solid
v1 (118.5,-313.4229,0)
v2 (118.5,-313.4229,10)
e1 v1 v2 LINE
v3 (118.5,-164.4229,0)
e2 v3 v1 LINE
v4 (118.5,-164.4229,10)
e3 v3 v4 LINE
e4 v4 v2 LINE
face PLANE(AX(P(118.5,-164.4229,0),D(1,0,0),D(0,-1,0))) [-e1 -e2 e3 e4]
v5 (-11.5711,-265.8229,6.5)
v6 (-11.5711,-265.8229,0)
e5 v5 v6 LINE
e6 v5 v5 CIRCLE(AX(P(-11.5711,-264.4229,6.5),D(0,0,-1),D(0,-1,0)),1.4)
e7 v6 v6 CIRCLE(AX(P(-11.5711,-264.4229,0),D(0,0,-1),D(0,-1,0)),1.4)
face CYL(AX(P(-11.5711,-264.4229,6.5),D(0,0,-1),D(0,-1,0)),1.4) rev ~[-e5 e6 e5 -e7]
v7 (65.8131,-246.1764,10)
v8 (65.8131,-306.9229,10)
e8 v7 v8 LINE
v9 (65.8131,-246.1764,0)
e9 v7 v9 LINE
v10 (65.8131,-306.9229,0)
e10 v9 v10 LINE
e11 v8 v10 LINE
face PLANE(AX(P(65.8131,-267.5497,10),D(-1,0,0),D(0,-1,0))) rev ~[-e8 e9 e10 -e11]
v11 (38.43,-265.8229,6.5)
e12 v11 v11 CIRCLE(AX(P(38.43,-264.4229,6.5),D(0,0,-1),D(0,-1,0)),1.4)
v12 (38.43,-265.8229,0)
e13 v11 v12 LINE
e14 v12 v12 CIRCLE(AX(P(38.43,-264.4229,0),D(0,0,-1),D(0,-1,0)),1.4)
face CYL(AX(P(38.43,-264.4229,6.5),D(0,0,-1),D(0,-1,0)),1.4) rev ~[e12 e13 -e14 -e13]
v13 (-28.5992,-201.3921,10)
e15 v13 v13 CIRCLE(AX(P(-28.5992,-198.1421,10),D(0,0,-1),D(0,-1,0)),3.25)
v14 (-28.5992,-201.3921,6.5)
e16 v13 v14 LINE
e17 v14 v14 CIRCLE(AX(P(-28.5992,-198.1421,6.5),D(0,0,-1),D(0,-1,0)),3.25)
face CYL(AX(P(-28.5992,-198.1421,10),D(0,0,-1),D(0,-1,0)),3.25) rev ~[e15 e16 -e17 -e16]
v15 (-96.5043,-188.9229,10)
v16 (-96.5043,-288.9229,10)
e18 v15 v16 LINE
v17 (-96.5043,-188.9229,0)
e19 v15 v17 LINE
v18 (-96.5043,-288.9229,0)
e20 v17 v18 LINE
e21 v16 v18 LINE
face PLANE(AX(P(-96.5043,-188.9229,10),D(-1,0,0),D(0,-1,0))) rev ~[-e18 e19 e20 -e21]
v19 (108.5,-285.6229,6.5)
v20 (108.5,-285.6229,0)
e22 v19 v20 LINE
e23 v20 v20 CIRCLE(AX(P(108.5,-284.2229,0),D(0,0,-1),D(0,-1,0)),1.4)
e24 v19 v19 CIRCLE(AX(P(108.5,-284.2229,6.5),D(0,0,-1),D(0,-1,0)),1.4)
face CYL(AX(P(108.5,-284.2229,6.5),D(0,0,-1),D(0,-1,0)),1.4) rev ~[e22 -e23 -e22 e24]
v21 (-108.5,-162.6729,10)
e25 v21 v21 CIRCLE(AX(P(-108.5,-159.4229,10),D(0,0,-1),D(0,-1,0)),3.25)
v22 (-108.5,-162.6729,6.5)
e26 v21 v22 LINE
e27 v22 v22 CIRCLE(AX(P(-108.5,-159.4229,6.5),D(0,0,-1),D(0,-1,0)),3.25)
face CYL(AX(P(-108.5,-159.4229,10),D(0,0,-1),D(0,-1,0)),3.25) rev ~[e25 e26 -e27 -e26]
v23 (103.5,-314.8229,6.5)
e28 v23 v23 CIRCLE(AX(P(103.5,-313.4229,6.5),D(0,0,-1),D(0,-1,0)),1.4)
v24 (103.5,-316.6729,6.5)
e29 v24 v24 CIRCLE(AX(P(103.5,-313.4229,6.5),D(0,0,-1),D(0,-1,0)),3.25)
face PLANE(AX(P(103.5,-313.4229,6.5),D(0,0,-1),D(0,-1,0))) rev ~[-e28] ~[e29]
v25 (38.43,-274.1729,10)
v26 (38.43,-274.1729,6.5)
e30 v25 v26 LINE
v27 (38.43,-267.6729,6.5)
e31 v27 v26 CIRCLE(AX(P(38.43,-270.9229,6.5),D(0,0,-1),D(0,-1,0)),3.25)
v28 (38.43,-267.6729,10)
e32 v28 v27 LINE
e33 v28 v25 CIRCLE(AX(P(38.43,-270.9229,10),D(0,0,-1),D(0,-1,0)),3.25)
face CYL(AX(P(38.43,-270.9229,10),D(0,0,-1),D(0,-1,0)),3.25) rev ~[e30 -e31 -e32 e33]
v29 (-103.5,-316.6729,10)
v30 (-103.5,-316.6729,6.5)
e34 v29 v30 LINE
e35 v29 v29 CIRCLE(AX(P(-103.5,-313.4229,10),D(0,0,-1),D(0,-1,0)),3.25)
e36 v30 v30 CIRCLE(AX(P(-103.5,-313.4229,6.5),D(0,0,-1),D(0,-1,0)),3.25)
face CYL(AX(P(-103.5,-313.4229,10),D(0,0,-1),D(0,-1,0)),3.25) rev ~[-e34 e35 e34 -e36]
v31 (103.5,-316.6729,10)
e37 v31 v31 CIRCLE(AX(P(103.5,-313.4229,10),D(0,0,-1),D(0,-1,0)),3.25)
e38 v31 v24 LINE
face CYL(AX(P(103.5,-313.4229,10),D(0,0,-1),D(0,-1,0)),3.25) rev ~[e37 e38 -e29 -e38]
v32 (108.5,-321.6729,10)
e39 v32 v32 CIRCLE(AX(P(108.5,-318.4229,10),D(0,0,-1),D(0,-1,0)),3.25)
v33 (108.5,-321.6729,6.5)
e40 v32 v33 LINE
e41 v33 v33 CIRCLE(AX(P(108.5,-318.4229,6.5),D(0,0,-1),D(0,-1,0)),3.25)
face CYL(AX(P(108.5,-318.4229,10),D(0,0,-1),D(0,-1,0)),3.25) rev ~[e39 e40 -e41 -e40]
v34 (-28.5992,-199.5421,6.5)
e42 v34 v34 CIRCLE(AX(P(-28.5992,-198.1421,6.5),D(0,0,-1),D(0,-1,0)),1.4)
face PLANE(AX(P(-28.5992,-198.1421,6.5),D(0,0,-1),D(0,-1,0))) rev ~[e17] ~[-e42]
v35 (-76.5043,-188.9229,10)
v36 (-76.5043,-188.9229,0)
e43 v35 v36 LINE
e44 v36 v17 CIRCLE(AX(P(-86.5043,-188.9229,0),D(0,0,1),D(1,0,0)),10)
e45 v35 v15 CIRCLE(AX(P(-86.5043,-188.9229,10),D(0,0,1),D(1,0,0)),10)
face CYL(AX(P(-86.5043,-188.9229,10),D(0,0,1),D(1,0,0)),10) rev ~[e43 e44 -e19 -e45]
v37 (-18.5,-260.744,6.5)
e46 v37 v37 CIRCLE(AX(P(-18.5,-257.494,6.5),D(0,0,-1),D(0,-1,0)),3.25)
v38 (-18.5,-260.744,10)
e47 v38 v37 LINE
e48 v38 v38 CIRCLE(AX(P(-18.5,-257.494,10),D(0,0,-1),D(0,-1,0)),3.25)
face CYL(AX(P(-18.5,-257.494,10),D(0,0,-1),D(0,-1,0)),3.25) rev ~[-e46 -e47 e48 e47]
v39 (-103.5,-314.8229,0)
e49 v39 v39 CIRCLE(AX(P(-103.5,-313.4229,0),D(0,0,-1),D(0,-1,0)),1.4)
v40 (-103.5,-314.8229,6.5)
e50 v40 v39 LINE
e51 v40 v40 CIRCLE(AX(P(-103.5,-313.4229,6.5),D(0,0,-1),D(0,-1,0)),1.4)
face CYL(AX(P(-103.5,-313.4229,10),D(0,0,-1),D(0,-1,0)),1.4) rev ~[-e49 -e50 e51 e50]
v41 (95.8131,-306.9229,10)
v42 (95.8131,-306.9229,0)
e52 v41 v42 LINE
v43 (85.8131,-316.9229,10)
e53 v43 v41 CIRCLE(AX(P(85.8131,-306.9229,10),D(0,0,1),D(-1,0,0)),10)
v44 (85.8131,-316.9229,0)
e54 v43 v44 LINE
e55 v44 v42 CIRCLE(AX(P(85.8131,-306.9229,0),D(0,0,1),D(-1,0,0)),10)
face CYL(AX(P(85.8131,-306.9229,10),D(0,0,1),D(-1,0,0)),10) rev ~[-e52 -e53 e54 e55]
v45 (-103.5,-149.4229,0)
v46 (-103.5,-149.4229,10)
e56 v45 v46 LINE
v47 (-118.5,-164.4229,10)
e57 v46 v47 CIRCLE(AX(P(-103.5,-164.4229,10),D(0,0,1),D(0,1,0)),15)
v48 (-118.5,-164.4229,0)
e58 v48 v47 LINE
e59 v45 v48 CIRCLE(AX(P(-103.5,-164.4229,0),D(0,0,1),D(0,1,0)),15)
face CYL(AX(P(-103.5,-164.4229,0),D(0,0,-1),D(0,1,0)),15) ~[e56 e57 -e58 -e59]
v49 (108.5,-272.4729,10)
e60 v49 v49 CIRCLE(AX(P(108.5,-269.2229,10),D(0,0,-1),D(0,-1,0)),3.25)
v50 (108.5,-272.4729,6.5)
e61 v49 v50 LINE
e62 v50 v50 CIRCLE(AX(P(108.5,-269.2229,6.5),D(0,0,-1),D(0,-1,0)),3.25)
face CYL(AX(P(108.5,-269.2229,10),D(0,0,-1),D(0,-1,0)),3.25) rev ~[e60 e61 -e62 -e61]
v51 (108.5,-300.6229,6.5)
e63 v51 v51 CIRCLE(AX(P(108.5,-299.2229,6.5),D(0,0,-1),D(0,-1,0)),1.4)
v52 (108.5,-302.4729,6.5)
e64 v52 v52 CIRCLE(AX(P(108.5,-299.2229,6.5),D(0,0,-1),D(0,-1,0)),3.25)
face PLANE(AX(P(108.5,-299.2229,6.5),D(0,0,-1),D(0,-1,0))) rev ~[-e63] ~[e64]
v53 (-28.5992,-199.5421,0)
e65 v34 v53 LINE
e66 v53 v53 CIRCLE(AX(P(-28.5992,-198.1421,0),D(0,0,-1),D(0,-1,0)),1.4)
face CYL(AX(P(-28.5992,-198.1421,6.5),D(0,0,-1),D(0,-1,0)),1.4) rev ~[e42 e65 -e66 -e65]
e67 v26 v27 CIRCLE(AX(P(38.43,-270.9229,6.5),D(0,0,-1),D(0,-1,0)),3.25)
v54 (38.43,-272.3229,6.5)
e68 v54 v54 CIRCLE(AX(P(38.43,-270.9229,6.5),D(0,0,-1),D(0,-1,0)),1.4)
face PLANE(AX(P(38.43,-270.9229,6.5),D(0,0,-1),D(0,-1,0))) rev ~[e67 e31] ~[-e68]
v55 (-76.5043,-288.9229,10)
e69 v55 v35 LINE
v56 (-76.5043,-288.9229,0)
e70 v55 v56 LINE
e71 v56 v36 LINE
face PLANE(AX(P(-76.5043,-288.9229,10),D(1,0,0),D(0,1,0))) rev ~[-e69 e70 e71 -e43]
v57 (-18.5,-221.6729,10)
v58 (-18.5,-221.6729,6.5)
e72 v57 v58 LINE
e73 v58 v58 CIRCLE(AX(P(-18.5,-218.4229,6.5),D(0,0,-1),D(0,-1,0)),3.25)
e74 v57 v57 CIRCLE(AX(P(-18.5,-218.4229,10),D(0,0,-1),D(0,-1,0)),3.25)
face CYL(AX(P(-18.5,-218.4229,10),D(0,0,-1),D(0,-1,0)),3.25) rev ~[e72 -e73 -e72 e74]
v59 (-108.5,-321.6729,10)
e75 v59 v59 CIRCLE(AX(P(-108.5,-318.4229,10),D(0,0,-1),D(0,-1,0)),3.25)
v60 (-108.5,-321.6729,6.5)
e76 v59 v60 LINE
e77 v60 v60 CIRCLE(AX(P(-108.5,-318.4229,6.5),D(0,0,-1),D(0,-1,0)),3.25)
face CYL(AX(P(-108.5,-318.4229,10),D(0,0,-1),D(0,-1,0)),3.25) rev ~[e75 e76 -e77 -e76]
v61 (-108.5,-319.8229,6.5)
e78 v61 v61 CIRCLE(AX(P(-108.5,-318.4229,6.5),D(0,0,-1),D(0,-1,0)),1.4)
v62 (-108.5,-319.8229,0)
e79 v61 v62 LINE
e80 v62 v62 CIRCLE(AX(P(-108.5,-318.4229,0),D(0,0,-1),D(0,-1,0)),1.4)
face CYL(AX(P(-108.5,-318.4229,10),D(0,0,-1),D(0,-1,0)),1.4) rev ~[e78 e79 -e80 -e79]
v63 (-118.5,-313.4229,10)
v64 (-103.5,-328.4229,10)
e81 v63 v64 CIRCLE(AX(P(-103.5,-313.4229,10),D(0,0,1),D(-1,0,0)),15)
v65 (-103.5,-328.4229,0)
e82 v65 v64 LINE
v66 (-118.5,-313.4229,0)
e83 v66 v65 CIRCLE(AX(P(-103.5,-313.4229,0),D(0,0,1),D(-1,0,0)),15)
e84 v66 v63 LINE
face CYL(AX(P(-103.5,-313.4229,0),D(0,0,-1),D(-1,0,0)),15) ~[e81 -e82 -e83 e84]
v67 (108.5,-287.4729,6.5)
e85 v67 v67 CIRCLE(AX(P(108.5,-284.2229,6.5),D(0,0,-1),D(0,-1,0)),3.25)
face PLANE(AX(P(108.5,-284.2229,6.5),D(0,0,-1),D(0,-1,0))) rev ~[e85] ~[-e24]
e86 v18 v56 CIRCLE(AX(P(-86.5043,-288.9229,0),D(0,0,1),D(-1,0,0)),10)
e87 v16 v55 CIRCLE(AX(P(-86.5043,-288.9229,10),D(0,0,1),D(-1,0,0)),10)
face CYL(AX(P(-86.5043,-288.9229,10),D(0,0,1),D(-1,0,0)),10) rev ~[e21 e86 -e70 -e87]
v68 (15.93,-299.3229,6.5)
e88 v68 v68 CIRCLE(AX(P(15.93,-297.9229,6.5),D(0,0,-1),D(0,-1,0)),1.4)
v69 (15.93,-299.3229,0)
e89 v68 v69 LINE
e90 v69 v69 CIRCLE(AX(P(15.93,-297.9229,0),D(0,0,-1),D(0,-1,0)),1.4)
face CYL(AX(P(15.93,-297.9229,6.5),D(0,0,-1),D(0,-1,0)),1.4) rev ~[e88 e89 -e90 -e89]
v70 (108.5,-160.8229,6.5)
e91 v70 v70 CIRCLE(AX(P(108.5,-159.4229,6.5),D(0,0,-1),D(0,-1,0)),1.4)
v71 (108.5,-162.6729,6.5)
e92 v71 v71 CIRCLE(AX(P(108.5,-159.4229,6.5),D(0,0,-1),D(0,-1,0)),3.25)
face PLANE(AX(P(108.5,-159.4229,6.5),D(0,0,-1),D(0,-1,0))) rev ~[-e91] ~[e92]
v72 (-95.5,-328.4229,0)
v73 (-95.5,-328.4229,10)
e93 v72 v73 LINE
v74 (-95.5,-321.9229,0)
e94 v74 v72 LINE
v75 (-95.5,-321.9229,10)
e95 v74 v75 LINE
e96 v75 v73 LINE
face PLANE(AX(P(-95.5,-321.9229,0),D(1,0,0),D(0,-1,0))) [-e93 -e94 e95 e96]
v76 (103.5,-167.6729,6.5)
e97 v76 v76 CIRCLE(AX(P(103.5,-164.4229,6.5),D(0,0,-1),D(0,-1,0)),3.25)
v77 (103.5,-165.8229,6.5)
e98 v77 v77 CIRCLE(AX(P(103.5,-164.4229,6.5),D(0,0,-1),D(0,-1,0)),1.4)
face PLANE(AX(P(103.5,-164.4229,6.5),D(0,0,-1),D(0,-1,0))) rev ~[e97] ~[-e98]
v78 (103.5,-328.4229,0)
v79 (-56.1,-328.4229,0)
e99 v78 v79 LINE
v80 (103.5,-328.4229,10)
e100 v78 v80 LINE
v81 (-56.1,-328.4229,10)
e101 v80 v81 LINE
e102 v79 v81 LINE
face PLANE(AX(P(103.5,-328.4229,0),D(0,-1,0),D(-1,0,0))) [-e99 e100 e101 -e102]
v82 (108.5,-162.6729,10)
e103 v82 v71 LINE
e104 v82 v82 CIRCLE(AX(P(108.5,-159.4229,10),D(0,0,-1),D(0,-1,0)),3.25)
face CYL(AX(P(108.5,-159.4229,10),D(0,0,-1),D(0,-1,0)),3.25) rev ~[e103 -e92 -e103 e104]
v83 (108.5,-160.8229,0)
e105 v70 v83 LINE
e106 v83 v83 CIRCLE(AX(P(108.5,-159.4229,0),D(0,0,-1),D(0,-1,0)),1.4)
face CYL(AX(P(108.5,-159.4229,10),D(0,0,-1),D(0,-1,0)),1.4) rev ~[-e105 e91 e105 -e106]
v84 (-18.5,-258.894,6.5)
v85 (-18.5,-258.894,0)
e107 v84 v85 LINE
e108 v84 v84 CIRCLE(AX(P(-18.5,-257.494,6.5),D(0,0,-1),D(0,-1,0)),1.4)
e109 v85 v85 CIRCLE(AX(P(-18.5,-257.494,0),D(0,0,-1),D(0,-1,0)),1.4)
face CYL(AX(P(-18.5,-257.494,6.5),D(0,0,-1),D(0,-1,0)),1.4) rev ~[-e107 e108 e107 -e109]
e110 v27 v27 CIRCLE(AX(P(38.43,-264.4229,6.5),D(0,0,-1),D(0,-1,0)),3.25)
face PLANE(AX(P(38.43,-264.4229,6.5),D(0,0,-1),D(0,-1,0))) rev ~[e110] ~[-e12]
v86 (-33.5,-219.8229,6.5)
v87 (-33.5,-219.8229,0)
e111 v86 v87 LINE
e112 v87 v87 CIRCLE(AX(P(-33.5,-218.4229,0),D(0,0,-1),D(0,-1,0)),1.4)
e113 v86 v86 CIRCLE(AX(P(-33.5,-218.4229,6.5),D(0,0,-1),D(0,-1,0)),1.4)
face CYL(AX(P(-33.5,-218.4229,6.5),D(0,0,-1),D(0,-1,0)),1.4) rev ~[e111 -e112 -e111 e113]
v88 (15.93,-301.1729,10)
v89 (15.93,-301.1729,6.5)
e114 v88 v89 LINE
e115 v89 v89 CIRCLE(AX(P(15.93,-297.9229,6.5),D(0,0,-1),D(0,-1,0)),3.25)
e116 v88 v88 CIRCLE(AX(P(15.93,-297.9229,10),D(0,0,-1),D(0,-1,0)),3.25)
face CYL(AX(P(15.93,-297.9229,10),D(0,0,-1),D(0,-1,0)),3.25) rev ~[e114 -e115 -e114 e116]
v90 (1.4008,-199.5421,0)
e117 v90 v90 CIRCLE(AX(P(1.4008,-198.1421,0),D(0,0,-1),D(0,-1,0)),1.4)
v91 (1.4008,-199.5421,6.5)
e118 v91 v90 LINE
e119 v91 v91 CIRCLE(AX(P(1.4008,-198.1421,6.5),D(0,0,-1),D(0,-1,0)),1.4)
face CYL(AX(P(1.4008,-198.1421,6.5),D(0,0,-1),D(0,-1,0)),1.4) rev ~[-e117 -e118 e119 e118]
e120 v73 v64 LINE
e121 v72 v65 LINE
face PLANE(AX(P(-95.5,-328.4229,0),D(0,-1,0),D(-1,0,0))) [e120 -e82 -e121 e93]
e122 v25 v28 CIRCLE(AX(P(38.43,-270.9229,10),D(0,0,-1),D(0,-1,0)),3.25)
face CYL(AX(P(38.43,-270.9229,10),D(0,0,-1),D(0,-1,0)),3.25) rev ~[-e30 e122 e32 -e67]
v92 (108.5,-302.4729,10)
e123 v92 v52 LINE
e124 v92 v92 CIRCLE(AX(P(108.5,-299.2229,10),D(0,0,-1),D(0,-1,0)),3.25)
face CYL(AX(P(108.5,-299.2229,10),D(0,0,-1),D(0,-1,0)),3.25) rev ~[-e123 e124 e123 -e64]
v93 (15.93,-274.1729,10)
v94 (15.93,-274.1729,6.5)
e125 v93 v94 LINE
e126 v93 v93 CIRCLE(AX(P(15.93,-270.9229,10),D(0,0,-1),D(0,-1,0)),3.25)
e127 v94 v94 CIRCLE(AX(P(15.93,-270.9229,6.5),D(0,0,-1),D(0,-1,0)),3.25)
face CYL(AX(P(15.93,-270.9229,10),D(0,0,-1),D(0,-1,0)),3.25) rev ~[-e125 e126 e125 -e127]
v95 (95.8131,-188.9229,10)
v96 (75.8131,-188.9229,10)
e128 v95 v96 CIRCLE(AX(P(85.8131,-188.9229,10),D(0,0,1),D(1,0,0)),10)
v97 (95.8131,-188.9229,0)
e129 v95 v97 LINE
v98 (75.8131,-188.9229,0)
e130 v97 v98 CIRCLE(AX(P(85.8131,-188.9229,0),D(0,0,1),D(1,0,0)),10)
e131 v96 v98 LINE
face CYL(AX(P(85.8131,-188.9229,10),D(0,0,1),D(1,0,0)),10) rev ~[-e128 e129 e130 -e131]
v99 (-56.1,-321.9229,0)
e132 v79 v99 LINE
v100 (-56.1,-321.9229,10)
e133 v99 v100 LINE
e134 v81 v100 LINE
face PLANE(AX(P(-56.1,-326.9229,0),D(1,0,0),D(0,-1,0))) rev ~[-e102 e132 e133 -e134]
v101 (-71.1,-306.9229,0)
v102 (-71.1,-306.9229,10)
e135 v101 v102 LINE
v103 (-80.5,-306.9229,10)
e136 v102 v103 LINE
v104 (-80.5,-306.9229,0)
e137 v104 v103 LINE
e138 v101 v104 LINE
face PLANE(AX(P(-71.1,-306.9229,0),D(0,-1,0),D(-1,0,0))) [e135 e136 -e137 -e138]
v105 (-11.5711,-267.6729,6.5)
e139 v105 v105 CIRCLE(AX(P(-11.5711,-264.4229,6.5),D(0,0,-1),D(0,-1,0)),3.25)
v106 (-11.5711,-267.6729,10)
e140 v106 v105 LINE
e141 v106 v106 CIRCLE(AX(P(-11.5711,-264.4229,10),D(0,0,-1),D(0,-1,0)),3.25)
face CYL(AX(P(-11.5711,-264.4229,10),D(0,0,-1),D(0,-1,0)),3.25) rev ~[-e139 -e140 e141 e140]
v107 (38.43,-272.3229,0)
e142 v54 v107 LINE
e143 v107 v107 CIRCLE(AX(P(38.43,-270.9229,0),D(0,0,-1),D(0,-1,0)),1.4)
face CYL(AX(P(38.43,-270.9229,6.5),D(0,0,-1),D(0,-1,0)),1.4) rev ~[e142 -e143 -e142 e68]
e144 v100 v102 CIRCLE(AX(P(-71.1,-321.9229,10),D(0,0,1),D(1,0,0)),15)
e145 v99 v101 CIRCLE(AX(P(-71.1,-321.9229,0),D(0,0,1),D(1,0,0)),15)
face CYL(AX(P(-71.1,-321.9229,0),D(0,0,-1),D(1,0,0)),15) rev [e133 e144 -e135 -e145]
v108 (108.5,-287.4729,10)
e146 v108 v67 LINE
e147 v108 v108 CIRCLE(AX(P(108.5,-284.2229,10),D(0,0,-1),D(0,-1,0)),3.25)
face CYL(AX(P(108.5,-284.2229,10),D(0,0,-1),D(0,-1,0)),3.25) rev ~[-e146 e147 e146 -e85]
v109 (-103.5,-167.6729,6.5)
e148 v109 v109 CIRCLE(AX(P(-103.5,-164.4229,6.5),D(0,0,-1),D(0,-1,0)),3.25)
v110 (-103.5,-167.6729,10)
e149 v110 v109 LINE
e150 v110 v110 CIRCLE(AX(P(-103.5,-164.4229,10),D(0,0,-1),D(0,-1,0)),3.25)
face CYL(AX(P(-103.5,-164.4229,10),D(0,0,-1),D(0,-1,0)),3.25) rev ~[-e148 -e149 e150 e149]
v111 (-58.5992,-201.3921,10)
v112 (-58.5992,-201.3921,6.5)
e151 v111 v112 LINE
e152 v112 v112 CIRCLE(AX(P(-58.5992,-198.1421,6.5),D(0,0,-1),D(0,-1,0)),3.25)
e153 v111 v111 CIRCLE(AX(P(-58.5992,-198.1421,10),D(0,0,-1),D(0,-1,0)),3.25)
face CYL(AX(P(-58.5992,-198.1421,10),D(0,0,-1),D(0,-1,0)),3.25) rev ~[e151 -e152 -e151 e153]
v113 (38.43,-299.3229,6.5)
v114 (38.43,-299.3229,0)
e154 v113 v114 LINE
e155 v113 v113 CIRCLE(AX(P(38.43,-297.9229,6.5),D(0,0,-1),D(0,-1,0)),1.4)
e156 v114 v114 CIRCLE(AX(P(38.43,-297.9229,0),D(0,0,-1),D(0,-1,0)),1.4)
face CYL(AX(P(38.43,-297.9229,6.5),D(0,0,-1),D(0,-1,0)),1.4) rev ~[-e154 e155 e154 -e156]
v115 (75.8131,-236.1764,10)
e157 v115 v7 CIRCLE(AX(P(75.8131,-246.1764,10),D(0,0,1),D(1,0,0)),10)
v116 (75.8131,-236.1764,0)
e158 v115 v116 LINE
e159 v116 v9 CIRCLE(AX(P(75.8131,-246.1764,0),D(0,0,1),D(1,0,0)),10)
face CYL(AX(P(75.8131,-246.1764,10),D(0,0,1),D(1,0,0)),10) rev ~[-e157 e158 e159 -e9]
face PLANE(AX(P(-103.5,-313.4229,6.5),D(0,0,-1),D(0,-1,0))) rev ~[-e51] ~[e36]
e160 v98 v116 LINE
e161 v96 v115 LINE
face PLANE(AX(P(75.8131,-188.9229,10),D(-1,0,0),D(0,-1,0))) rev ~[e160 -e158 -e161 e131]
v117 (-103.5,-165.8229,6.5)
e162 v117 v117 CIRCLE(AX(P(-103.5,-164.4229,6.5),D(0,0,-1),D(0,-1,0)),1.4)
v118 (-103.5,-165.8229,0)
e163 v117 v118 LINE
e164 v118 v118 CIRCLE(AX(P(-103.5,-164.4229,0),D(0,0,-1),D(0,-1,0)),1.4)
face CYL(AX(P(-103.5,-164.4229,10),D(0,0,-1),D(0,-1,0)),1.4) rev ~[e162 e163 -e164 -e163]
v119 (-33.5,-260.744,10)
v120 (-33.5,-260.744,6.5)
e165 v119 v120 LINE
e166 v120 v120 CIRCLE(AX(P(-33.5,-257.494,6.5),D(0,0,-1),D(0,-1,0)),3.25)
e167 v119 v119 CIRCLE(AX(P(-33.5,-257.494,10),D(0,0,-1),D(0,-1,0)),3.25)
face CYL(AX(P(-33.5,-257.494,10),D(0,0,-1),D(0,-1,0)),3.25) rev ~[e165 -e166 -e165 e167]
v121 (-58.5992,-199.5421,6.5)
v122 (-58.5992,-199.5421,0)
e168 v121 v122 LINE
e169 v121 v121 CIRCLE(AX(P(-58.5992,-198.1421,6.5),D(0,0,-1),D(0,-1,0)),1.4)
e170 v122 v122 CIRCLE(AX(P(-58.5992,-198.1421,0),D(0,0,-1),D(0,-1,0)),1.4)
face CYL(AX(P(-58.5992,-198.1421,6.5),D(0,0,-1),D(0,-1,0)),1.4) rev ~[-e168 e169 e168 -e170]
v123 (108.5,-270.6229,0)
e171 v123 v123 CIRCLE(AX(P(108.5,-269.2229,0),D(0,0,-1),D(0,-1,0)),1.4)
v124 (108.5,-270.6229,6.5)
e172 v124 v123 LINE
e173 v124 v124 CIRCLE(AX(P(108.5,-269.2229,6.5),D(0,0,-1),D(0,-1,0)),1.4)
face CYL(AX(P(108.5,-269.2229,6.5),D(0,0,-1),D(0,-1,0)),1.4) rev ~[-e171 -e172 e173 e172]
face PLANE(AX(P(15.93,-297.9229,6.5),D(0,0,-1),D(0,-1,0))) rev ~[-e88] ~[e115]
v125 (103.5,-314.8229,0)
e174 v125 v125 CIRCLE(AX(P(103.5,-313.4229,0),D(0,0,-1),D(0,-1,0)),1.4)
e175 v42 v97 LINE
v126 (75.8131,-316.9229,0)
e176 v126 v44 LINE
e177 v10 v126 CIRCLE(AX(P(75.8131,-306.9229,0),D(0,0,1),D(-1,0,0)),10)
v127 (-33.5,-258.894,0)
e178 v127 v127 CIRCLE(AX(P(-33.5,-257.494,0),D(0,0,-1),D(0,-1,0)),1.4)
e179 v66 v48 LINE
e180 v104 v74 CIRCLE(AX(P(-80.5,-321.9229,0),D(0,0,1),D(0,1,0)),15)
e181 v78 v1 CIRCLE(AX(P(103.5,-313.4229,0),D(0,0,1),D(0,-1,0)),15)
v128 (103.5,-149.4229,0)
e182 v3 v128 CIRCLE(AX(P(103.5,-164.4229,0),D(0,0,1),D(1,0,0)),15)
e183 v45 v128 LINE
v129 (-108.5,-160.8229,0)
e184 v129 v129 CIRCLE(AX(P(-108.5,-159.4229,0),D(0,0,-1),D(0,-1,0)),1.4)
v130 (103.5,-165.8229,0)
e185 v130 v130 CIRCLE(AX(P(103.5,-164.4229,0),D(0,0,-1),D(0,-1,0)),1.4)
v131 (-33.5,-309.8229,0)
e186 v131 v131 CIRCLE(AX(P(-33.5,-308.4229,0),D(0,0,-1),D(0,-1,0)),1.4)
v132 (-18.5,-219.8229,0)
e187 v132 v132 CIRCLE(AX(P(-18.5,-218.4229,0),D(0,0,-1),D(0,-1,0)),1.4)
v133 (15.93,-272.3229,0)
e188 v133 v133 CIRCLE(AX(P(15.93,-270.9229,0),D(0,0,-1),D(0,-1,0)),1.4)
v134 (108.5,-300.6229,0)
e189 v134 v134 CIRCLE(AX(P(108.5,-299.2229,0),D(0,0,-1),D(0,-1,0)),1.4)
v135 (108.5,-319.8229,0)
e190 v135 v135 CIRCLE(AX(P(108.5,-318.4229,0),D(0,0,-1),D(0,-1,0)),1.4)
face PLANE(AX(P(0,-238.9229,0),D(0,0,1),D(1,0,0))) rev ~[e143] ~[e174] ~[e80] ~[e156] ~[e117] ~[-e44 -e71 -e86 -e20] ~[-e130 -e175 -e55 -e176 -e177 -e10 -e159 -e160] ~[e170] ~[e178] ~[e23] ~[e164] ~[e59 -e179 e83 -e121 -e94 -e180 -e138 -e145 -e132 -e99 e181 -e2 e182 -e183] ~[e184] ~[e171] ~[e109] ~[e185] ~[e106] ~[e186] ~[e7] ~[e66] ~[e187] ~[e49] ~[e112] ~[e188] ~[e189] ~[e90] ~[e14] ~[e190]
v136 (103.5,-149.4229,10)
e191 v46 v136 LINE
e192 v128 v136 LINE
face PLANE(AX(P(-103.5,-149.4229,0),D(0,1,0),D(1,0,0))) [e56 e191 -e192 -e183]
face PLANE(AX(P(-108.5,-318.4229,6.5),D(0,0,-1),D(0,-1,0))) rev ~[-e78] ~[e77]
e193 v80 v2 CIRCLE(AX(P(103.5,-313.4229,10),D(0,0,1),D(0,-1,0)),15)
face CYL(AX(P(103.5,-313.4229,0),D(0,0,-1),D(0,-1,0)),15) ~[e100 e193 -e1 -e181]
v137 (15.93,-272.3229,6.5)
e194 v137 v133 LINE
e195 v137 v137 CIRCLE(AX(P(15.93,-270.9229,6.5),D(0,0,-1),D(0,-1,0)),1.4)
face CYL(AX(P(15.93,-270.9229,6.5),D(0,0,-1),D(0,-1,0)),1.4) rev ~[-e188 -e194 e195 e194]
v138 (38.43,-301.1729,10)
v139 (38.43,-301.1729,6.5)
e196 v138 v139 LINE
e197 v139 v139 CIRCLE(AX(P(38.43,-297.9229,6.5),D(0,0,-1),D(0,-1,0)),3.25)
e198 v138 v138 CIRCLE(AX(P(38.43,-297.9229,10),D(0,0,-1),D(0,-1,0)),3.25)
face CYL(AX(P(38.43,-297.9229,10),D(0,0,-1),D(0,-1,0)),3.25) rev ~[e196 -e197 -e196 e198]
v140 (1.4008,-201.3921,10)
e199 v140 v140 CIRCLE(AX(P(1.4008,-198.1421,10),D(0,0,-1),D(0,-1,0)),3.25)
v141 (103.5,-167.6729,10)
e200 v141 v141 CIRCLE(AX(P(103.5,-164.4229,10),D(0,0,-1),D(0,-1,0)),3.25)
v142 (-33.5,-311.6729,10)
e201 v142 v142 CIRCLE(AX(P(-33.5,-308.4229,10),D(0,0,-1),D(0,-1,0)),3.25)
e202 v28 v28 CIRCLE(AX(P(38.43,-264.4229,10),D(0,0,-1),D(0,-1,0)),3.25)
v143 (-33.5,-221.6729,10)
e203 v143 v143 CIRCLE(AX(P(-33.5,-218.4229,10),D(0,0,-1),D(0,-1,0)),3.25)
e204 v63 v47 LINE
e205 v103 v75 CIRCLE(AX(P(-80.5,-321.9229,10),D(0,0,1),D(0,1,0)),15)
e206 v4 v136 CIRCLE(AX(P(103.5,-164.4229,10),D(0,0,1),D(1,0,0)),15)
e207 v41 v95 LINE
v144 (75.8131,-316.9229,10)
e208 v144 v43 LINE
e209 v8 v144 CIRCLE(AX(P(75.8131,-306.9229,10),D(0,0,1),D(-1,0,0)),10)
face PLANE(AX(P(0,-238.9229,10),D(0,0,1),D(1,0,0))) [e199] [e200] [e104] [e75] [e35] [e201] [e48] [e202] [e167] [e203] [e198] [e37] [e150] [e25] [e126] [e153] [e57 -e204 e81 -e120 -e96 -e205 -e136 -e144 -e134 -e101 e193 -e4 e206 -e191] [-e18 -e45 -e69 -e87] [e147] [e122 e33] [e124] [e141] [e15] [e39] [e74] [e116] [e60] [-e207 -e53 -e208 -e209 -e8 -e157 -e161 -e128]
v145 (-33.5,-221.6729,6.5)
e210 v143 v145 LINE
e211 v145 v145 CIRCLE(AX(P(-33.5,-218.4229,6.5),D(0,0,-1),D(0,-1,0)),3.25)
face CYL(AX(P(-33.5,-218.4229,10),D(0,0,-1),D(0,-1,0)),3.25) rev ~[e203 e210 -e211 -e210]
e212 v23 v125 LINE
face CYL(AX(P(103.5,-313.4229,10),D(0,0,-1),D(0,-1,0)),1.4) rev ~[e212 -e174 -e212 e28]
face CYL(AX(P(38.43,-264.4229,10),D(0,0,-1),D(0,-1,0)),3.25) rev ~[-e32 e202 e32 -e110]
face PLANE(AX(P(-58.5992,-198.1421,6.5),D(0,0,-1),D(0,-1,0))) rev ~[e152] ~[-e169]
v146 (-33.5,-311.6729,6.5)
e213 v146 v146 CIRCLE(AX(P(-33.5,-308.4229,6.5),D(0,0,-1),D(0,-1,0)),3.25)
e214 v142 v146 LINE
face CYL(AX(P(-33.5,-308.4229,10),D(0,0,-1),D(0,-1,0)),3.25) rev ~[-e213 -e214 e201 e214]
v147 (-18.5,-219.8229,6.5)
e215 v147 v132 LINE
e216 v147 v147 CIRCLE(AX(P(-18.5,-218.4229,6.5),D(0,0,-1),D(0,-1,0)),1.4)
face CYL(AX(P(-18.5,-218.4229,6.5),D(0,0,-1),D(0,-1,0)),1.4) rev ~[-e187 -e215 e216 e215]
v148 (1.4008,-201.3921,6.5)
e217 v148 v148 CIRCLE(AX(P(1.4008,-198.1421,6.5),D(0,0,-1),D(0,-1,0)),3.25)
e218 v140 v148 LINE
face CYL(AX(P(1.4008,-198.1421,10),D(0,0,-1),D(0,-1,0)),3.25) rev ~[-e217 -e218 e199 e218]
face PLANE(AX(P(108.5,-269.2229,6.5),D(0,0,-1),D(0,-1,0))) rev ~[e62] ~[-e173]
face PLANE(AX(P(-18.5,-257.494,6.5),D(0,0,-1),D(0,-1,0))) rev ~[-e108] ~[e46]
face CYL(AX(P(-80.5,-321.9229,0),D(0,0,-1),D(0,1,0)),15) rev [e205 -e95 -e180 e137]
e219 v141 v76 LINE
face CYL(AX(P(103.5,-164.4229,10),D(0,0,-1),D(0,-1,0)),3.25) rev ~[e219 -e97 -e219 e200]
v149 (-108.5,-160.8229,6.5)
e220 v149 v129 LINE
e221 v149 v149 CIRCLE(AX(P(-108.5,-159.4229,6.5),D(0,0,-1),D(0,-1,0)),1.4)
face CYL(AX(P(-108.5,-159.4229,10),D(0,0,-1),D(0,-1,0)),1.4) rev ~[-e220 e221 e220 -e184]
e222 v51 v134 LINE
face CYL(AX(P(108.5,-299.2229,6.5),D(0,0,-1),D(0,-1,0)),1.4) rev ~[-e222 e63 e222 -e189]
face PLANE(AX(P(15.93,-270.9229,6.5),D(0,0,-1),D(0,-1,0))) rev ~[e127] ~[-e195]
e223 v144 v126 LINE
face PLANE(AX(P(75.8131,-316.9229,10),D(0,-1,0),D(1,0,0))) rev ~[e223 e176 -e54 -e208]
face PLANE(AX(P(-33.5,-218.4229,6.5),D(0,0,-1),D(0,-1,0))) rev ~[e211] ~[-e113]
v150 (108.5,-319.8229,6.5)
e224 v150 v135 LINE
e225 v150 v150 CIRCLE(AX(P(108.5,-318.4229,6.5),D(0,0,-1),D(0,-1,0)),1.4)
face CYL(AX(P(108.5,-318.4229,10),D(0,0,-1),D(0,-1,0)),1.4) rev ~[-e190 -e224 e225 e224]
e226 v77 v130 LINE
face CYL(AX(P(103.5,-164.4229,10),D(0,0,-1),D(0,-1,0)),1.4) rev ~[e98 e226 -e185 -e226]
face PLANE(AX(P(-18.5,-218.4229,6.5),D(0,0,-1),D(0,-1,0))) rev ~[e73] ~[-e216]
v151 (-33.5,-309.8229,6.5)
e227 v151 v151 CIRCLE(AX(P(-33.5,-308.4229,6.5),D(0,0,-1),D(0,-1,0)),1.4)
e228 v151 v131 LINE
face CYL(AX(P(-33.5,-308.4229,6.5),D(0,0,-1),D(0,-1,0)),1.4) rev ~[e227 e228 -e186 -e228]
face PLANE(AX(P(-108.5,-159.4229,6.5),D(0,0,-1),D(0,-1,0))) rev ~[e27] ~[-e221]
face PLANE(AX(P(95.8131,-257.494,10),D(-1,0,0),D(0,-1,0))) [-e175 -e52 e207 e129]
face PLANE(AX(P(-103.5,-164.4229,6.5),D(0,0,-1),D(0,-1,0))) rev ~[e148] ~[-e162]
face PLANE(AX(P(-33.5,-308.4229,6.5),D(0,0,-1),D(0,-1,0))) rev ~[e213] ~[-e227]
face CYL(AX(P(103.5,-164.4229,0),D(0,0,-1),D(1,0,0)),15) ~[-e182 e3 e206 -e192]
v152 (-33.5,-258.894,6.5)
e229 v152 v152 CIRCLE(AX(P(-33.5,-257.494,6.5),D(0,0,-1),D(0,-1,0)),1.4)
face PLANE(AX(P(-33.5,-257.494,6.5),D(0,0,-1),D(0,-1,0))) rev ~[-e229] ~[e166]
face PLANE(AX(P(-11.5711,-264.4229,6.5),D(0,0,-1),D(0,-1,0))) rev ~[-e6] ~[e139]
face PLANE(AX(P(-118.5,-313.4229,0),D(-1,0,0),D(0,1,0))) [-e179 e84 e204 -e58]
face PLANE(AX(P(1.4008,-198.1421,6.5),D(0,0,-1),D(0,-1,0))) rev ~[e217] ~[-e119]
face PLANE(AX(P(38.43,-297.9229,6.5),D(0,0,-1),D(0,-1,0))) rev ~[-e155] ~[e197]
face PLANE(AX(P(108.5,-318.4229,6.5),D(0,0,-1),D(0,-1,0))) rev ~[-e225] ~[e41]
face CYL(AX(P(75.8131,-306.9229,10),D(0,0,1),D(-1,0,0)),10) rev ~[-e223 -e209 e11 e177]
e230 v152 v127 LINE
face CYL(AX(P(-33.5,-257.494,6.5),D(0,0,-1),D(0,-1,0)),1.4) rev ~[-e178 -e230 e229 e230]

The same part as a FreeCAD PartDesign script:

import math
import FreeCAD as App
import Part
import Sketcher

V = App.Vector
Q = App.Units.Quantity

doc = App.newDocument("Part")
body = doc.addObject("PartDesign::Body", "Body")

# Sketch on XY plane
sketch1 = body.newObject("Sketcher::SketchObject", "Sketch")
sketch1.AttachmentSupport = (doc.getObject("XY_Plane"), [""])
sketch1.MapMode = "FlatFace"
sketch1.addGeometry([
    Part.LineSegment(V(103.5, -149.4229, 0), V(-103.5, -149.4229, 0)),  # 0
    Part.ArcOfCircle(Part.Circle(V(-103.5, -164.4229, 0), V(0, 0, 1), 15), math.radians(90), math.radians(180)),  # 1
    Part.LineSegment(V(-118.5, -164.4229, 0), V(-118.5, -313.4229, 0)),  # 2
    Part.ArcOfCircle(Part.Circle(V(-103.5, -313.4229, 0), V(0, 0, 1), 15), math.radians(180), math.radians(270)),  # 3
    Part.LineSegment(V(-103.5, -328.4229, 0), V(-95.5, -328.4229, 0)),  # 4
    Part.LineSegment(V(-95.5, -328.4229, 0), V(-95.5, -321.9229, 0)),  # 5
    Part.ArcOfCircle(Part.Circle(V(-80.5, -321.9229, 0), V(0, 0, 1), 15), math.radians(90), math.radians(180)),  # 6
    Part.LineSegment(V(-80.5, -306.9229, 0), V(-71.1, -306.9229, 0)),  # 7
    Part.ArcOfCircle(Part.Circle(V(-71.1, -321.9229, 0), V(0, 0, 1), 15), math.radians(0), math.radians(90)),  # 8
    Part.LineSegment(V(-56.1, -321.9229, 0), V(-56.1, -328.4229, 0)),  # 9
    Part.LineSegment(V(-56.1, -328.4229, 0), V(103.5, -328.4229, 0)),  # 10
    Part.ArcOfCircle(Part.Circle(V(103.5, -313.4229, 0), V(0, 0, 1), 15), math.radians(-90), math.radians(0)),  # 11
    Part.LineSegment(V(118.5, -313.4229, 0), V(118.5, -164.4229, 0)),  # 12
    Part.ArcOfCircle(Part.Circle(V(103.5, -164.4229, 0), V(0, 0, 1), 15), math.radians(0), math.radians(90)),  # 13
], False)
sketch1.addConstraint([
    Sketcher.Constraint("Tangent", 0, 2, 1, 1),
    Sketcher.Constraint("Tangent", 1, 2, 2, 1),
    Sketcher.Constraint("Tangent", 2, 2, 3, 1),
    Sketcher.Constraint("Tangent", 3, 2, 4, 1),
    Sketcher.Constraint("Coincident", 4, 2, 5, 1),
    Sketcher.Constraint("Tangent", 5, 2, 6, 2),
    Sketcher.Constraint("Tangent", 6, 1, 7, 1),
    Sketcher.Constraint("Tangent", 7, 2, 8, 2),
    Sketcher.Constraint("Tangent", 8, 1, 9, 1),
    Sketcher.Constraint("Coincident", 9, 2, 10, 1),
    Sketcher.Constraint("Tangent", 10, 2, 11, 1),
    Sketcher.Constraint("Tangent", 11, 2, 12, 1),
    Sketcher.Constraint("Tangent", 12, 2, 13, 1),
    Sketcher.Constraint("Tangent", 13, 2, 0, 1),
    Sketcher.Constraint("Horizontal", 0),
    Sketcher.Constraint("Vertical", 2),
    Sketcher.Constraint("Horizontal", 4),
    Sketcher.Constraint("Vertical", 5),
    Sketcher.Constraint("Horizontal", 7),
    Sketcher.Constraint("Vertical", 9),
    Sketcher.Constraint("Horizontal", 10),
    Sketcher.Constraint("Vertical", 12),
    Sketcher.Constraint("Equal", 1, 3),
    Sketcher.Constraint("Equal", 3, 6),
    Sketcher.Constraint("Equal", 6, 8),
    Sketcher.Constraint("Equal", 8, 11),
    Sketcher.Constraint("Equal", 11, 13),
    Sketcher.Constraint("Symmetric", 3, 3, 11, 3, -2),
    Sketcher.Constraint("Radius", 1, Q("15 mm")),
    Sketcher.Constraint("DistanceX", 0, 2, 0, 1, Q("207 mm")),
    Sketcher.Constraint("DistanceX", 4, 1, 4, 2, Q("8 mm")),
    Sketcher.Constraint("DistanceY", 2, 2, 2, 1, Q("149 mm")),
    Sketcher.Constraint("DistanceX", 7, 1, 7, 2, Q("9.4 mm")),
    Sketcher.Constraint("DistanceY", 5, 1, 5, 2, Q("6.5 mm")),
    Sketcher.Constraint("DistanceY", 1, 3, -1, 1, Q("164.423 mm")),
])
pad1 = body.newObject("PartDesign::Pad", "Pad")
pad1.Profile = sketch1
pad1.Length = 10

# Sketch on XY plane
sketch2 = body.newObject("Sketcher::SketchObject", "Sketch001")
sketch2.AttachmentSupport = (doc.getObject("XY_Plane"), [""])
sketch2.MapMode = "FlatFace"
sketch2.AttachmentOffset = App.Placement(V(0, 0, 10), App.Rotation())
sketch2.addGeometry([
    Part.Circle(V(-103.5, -164.4229, 0), V(0, 0, 1), 1.4),  # 0
    Part.Circle(V(-103.5, -313.4229, 0), V(0, 0, 1), 1.4),  # 1
    Part.Circle(V(103.5, -313.4229, 0), V(0, 0, 1), 1.4),  # 2
    Part.Circle(V(103.5, -164.4229, 0), V(0, 0, 1), 1.4),  # 3
    Part.Circle(V(108.5, -159.4229, 0), V(0, 0, 1), 1.4),  # 4
    Part.Circle(V(108.5, -318.4229, 0), V(0, 0, 1), 1.4),  # 5
    Part.Circle(V(-108.5, -159.4229, 0), V(0, 0, 1), 1.4),  # 6
    Part.Circle(V(-108.5, -318.4229, 0), V(0, 0, 1), 1.4),  # 7
], False)
sketch2.addConstraint([
    Sketcher.Constraint("Equal", 0, 1),
    Sketcher.Constraint("Equal", 1, 2),
    Sketcher.Constraint("Equal", 2, 3),
    Sketcher.Constraint("Equal", 3, 4),
    Sketcher.Constraint("Equal", 4, 5),
    Sketcher.Constraint("Equal", 5, 6),
    Sketcher.Constraint("Equal", 6, 7),
    Sketcher.Constraint("Symmetric", 1, 3, 2, 3, -2),
    Sketcher.Constraint("Symmetric", 0, 3, 3, 3, -2),
    Sketcher.Constraint("Symmetric", 4, 3, 6, 3, -2),
    Sketcher.Constraint("Symmetric", 5, 3, 7, 3, -2),
    Sketcher.Constraint("Vertical", 0, 3, 1, 3),
    Sketcher.Constraint("Vertical", 4, 3, 5, 3),
    Sketcher.Constraint("Diameter", 0, Q("2.8 mm")),
    Sketcher.Constraint("DistanceY", 1, 3, 0, 3, Q("149 mm")),
    Sketcher.Constraint("DistanceX", 1, 3, 2, 3, Q("207 mm")),
    Sketcher.Constraint("DistanceX", 3, 3, 4, 3, Q("5 mm")),
    Sketcher.Constraint("DistanceY", 3, 3, 4, 3, Q("5 mm")),
    Sketcher.Constraint("DistanceY", 5, 3, 2, 3, Q("5 mm")),
    Sketcher.Constraint("DistanceY", 0, 3, -1, 1, Q("164.423 mm")),
])
doc.recompute()
hole = body.newObject("PartDesign::Hole", "Hole")
hole.Profile = sketch2
hole.ThreadType = "None"
hole.Diameter = 2.8
hole.DepthType = "ThroughAll"
doc.recompute()

mirrored = body.newObject("PartDesign::Mirrored", "Mirrored")
mirrored.Originals = [hole]
mirrored.MirrorPlane = (doc.getObject("YZ_Plane"), [""])
body.Tip = mirrored

# Sketch on XY plane
sketch3 = body.newObject("Sketcher::SketchObject", "Sketch002")
sketch3.AttachmentSupport = (doc.getObject("XY_Plane"), [""])
sketch3.MapMode = "FlatFace"
sketch3.AttachmentOffset = App.Placement(V(0, 0, 10), App.Rotation())
sketch3.addGeometry([
    Part.ArcOfCircle(Part.Circle(V(85.8131, -188.9229, 0), V(0, 0, 1), 10), math.radians(0), math.radians(180)),  # 0
    Part.LineSegment(V(75.8131, -188.9229, 0), V(75.8131, -288.9229, 0)),  # 1
    Part.ArcOfCircle(Part.Circle(V(85.8131, -288.9229, 0), V(0, 0, 1), 10), math.radians(180), math.radians(360)),  # 2
    Part.LineSegment(V(95.8131, -288.9229, 0), V(95.8131, -188.9229, 0)),  # 3
    Part.ArcOfCircle(Part.Circle(V(-86.5043, -188.9229, 0), V(0, 0, 1), 10), math.radians(0), math.radians(180)),  # 4
    Part.LineSegment(V(-96.5043, -188.9229, 0), V(-96.5043, -288.9229, 0)),  # 5
    Part.ArcOfCircle(Part.Circle(V(-86.5043, -288.9229, 0), V(0, 0, 1), 10), math.radians(180), math.radians(360)),  # 6
    Part.LineSegment(V(-76.5043, -288.9229, 0), V(-76.5043, -188.9229, 0)),  # 7
], False)
sketch3.addConstraint([
    Sketcher.Constraint("Tangent", 0, 2, 1, 1),
    Sketcher.Constraint("Tangent", 1, 2, 2, 1),
    Sketcher.Constraint("Tangent", 2, 2, 3, 1),
    Sketcher.Constraint("Tangent", 3, 2, 0, 1),
    Sketcher.Constraint("Tangent", 4, 2, 5, 1),
    Sketcher.Constraint("Tangent", 5, 2, 6, 1),
    Sketcher.Constraint("Tangent", 6, 2, 7, 1),
    Sketcher.Constraint("Tangent", 7, 2, 4, 1),
    Sketcher.Constraint("Vertical", 1),
    Sketcher.Constraint("Vertical", 3),
    Sketcher.Constraint("Vertical", 5),
    Sketcher.Constraint("Vertical", 7),
    Sketcher.Constraint("Equal", 2, 4),
    Sketcher.Constraint("Horizontal", 0, 3, 4, 3),
    Sketcher.Constraint("Horizontal", 2, 3, 6, 3),
    Sketcher.Constraint("Radius", 0, Q("10 mm")),
    Sketcher.Constraint("DistanceY", 1, 2, 1, 1, Q("100 mm")),
    Sketcher.Constraint("DistanceX", -1, 1, 0, 3, Q("85.813 mm")),
    Sketcher.Constraint("DistanceY", 0, 3, -1, 1, Q("188.923 mm")),
    Sketcher.Constraint("DistanceX", 4, 3, -1, 1, Q("86.5043 mm")),
])
pocket1 = body.newObject("PartDesign::Pocket", "Pocket")
pocket1.Profile = sketch3
pocket1.Type = "ThroughAll"

# Sketch on XY plane
sketch4 = body.newObject("Sketcher::SketchObject", "Sketch003")
sketch4.AttachmentSupport = (doc.getObject("XY_Plane"), [""])
sketch4.MapMode = "FlatFace"
sketch4.AttachmentOffset = App.Placement(V(0, 0, 10), App.Rotation())
sketch4.addGeometry([
    Part.Circle(V(-108.5, -159.4229, 0), V(0, 0, 1), 1.4),  # 0
    Part.Circle(V(-103.5, -164.4229, 0), V(0, 0, 1), 1.4),  # 1
    Part.Circle(V(-108.5, -318.4229, 0), V(0, 0, 1), 1.4),  # 2
    Part.Circle(V(-103.5, -313.4229, 0), V(0, 0, 1), 1.4),  # 3
    Part.Circle(V(-33.5, -308.4229, 0), V(0, 0, 1), 1.4),  # 4
    Part.Circle(V(-33.5, -257.494, 0), V(0, 0, 1), 1.4),  # 5
    Part.Circle(V(-18.5, -257.494, 0), V(0, 0, 1), 1.4),  # 6
    Part.Circle(V(-11.5711, -264.4229, 0), V(0, 0, 1), 1.4),  # 7
    Part.Circle(V(-33.5, -218.4229, 0), V(0, 0, 1), 1.4),  # 8
    Part.Circle(V(-18.5, -218.4229, 0), V(0, 0, 1), 1.4),  # 9
    Part.Circle(V(15.93, -270.9229, 0), V(0, 0, 1), 1.4),  # 10
    Part.Circle(V(38.43, -270.9229, 0), V(0, 0, 1), 1.4),  # 11
    Part.Circle(V(38.43, -264.4229, 0), V(0, 0, 1), 1.4),  # 12
    Part.Circle(V(38.43, -297.9229, 0), V(0, 0, 1), 1.4),  # 13
    Part.Circle(V(15.93, -297.9229, 0), V(0, 0, 1), 1.4),  # 14
    Part.Circle(V(108.5, -318.4229, 0), V(0, 0, 1), 1.4),  # 15
    Part.Circle(V(103.5, -313.4229, 0), V(0, 0, 1), 1.4),  # 16
    Part.Circle(V(108.5, -299.2229, 0), V(0, 0, 1), 1.4),  # 17
    Part.Circle(V(108.5, -269.2229, 0), V(0, 0, 1), 1.4),  # 18
    Part.Circle(V(108.5, -284.2229, 0), V(0, 0, 1), 1.4),  # 19
    Part.Circle(V(103.5, -164.4229, 0), V(0, 0, 1), 1.4),  # 20
    Part.Circle(V(108.5, -159.4229, 0), V(0, 0, 1), 1.4),  # 21
    Part.Circle(V(-58.5992, -198.1421, 0), V(0, 0, 1), 1.4),  # 22
    Part.Circle(V(-28.5992, -198.1421, 0), V(0, 0, 1), 1.4),  # 23
    Part.Circle(V(1.4008, -198.1421, 0), V(0, 0, 1), 1.4),  # 24
], False)
sketch4.addConstraint([
    Sketcher.Constraint("Equal", 0, 1),
    Sketcher.Constraint("Equal", 1, 2),
    Sketcher.Constraint("Equal", 2, 3),
    Sketcher.Constraint("Equal", 3, 4),
    Sketcher.Constraint("Equal", 4, 5),
    Sketcher.Constraint("Equal", 5, 6),
    Sketcher.Constraint("Equal", 6, 7),
    Sketcher.Constraint("Equal", 7, 8),
    Sketcher.Constraint("Equal", 8, 9),
    Sketcher.Constraint("Equal", 9, 10),
    Sketcher.Constraint("Equal", 10, 11),
    Sketcher.Constraint("Equal", 11, 12),
    Sketcher.Constraint("Equal", 12, 13),
    Sketcher.Constraint("Equal", 13, 14),
    Sketcher.Constraint("Equal", 14, 15),
    Sketcher.Constraint("Equal", 15, 16),
    Sketcher.Constraint("Equal", 16, 17),
    Sketcher.Constraint("Equal", 17, 18),
    Sketcher.Constraint("Equal", 18, 19),
    Sketcher.Constraint("Equal", 19, 20),
    Sketcher.Constraint("Equal", 20, 21),
    Sketcher.Constraint("Equal", 21, 22),
    Sketcher.Constraint("Equal", 22, 23),
    Sketcher.Constraint("Equal", 23, 24),
    Sketcher.Constraint("Symmetric", 2, 3, 15, 3, -2),
    Sketcher.Constraint("Symmetric", 3, 3, 16, 3, -2),
    Sketcher.Constraint("Symmetric", 1, 3, 20, 3, -2),
    Sketcher.Constraint("Symmetric", 0, 3, 21, 3, -2),
    Sketcher.Constraint("Horizontal", 5, 3, 6, 3),
    Sketcher.Constraint("Horizontal", 8, 3, 9, 3),
    Sketcher.Constraint("Horizontal", 10, 3, 11, 3),
    Sketcher.Constraint("Horizontal", 7, 3, 12, 3),
    Sketcher.Constraint("Horizontal", 13, 3, 14, 3),
    Sketcher.Constraint("Horizontal", 22, 3, 23, 3),
    Sketcher.Constraint("Horizontal", 23, 3, 24, 3),
    Sketcher.Constraint("Vertical", 0, 3, 2, 3),
    Sketcher.Constraint("Vertical", 1, 3, 3, 3),
    Sketcher.Constraint("Vertical", 4, 3, 5, 3),
    Sketcher.Constraint("Vertical", 5, 3, 8, 3),
    Sketcher.Constraint("Vertical", 6, 3, 9, 3),
    Sketcher.Constraint("Vertical", 11, 3, 12, 3),
    Sketcher.Constraint("Vertical", 12, 3, 13, 3),
    Sketcher.Constraint("Vertical", 10, 3, 14, 3),
    Sketcher.Constraint("Vertical", 15, 3, 17, 3),
    Sketcher.Constraint("Vertical", 17, 3, 18, 3),
    Sketcher.Constraint("Vertical", 18, 3, 19, 3),
    Sketcher.Constraint("Diameter", 0, Q("2.8 mm")),
    Sketcher.Constraint("DistanceX", 0, 3, 1, 3, Q("5 mm")),
    Sketcher.Constraint("DistanceY", 1, 3, 0, 3, Q("5 mm")),
    Sketcher.Constraint("DistanceY", 2, 3, 1, 3, Q("154 mm")),
    Sketcher.Constraint("DistanceY", 2, 3, 3, 3, Q("5 mm")),
    Sketcher.Constraint("DistanceX", 3, 3, 4, 3, Q("70 mm")),
    Sketcher.Constraint("DistanceY", 3, 3, 4, 3, Q("5 mm")),
    Sketcher.Constraint("DistanceX", 5, 3, 6, 3, Q("15 mm")),
    Sketcher.Constraint("DistanceY", 4, 3, 7, 3, Q("44 mm")),
    Sketcher.Constraint("DistanceY", 7, 3, 8, 3, Q("46 mm")),
    Sketcher.Constraint("DistanceY", 13, 3, 11, 3, Q("27 mm")),
    Sketcher.Constraint("DistanceY", 17, 3, 18, 3, Q("30 mm")),
    Sketcher.Constraint("DistanceY", 17, 3, 19, 3, Q("15 mm")),
    Sketcher.Constraint("DistanceX", 9, 3, 20, 3, Q("122 mm")),
    Sketcher.Constraint("DistanceX", 22, 3, 23, 3, Q("30 mm")),
    Sketcher.Constraint("DistanceX", 23, 3, 24, 3, Q("30 mm")),
    Sketcher.Constraint("DistanceY", 10, 3, 7, 3, Q("6.5 mm")),
    Sketcher.Constraint("DistanceX", 10, 3, 11, 3, Q("22.5 mm")),
    Sketcher.Constraint("DistanceY", 16, 3, 17, 3, Q("14.2 mm")),
    Sketcher.Constraint("DistanceX", -1, 1, 10, 3, Q("15.93 mm")),
    Sketcher.Constraint("DistanceY", 0, 3, -1, 1, Q("159.423 mm")),
    Sketcher.Constraint("DistanceY", 5, 3, -1, 1, Q("257.494 mm")),
    Sketcher.Constraint("DistanceX", 7, 3, -1, 1, Q("11.571 mm")),
    Sketcher.Constraint("DistanceY", 22, 3, -1, 1, Q("198.142 mm")),
    Sketcher.Constraint("DistanceX", 22, 3, -1, 1, Q("58.5992 mm")),
])
doc.recompute()
hole2 = body.newObject("PartDesign::Hole", "Hole001")
hole2.Profile = sketch4
hole2.ThreadType = "None"
hole2.Diameter = 2.8
hole2.DepthType = "Dimension"
hole2.Depth = 20
hole2.DrillPoint = "Flat"
hole2.HoleCutType = "Counterbore"
hole2.HoleCutDiameter = 6.5
hole2.HoleCutDepth = 3.5

# Sketch on XY plane
sketch5 = body.newObject("Sketcher::SketchObject", "Sketch004")
sketch5.AttachmentSupport = (doc.getObject("XY_Plane"), [""])
sketch5.MapMode = "FlatFace"
sketch5.AttachmentOffset = App.Placement(V(0, 0, 10), App.Rotation())
sketch5.addGeometry([
    Part.ArcOfCircle(Part.Circle(V(75.8131, -306.9229, 0), V(0, 0, 1), 10), math.radians(180), math.radians(270)),  # 0
    Part.LineSegment(V(75.8131, -316.9229, 0), V(85.8131, -316.9229, 0)),  # 1
    Part.ArcOfCircle(Part.Circle(V(85.8131, -306.9229, 0), V(0, 0, 1), 10), math.radians(-90), math.radians(0)),  # 2
    Part.LineSegment(V(95.8131, -306.9229, 0), V(95.8131, -188.9229, 0)),  # 3
    Part.ArcOfCircle(Part.Circle(V(85.8131, -188.9229, 0), V(0, 0, 1), 10), math.radians(0), math.radians(180)),  # 4
    Part.LineSegment(V(75.8131, -188.9229, 0), V(75.8131, -236.1764, 0)),  # 5
    Part.ArcOfCircle(Part.Circle(V(75.8131, -246.1764, 0), V(0, 0, 1), 10), math.radians(90), math.radians(180)),  # 6
    Part.LineSegment(V(65.8131, -246.1764, 0), V(65.8131, -306.9229, 0)),  # 7
], False)
sketch5.addConstraint([
    Sketcher.Constraint("Tangent", 0, 2, 1, 1),
    Sketcher.Constraint("Tangent", 1, 2, 2, 1),
    Sketcher.Constraint("Tangent", 2, 2, 3, 1),
    Sketcher.Constraint("Tangent", 3, 2, 4, 1),
    Sketcher.Constraint("Tangent", 4, 2, 5, 1),
    Sketcher.Constraint("Coincident", 5, 2, 6, 1),
    Sketcher.Constraint("Tangent", 6, 2, 7, 1),
    Sketcher.Constraint("Tangent", 7, 2, 0, 1),
    Sketcher.Constraint("Horizontal", 1),
    Sketcher.Constraint("Vertical", 3),
    Sketcher.Constraint("Vertical", 5),
    Sketcher.Constraint("Vertical", 7),
    Sketcher.Constraint("Equal", 0, 2),
    Sketcher.Constraint("Equal", 2, 4),
    Sketcher.Constraint("Equal", 4, 6),
    Sketcher.Constraint("Vertical", 0, 2, 4, 2),
    Sketcher.Constraint("Radius", 0, Q("10 mm")),
    Sketcher.Constraint("DistanceY", 3, 1, 3, 2, Q("118 mm")),
    Sketcher.Constraint("DistanceY", 5, 2, 5, 1, Q("47.2535 mm")),
    Sketcher.Constraint("DistanceX", -1, 1, 0, 3, Q("75.813 mm")),
    Sketcher.Constraint("DistanceY", 0, 3, -1, 1, Q("306.923 mm")),
])
pocket2 = body.newObject("PartDesign::Pocket", "Pocket001")
pocket2.Profile = sketch5
pocket2.Type = "ThroughAll"

doc.recompute()
